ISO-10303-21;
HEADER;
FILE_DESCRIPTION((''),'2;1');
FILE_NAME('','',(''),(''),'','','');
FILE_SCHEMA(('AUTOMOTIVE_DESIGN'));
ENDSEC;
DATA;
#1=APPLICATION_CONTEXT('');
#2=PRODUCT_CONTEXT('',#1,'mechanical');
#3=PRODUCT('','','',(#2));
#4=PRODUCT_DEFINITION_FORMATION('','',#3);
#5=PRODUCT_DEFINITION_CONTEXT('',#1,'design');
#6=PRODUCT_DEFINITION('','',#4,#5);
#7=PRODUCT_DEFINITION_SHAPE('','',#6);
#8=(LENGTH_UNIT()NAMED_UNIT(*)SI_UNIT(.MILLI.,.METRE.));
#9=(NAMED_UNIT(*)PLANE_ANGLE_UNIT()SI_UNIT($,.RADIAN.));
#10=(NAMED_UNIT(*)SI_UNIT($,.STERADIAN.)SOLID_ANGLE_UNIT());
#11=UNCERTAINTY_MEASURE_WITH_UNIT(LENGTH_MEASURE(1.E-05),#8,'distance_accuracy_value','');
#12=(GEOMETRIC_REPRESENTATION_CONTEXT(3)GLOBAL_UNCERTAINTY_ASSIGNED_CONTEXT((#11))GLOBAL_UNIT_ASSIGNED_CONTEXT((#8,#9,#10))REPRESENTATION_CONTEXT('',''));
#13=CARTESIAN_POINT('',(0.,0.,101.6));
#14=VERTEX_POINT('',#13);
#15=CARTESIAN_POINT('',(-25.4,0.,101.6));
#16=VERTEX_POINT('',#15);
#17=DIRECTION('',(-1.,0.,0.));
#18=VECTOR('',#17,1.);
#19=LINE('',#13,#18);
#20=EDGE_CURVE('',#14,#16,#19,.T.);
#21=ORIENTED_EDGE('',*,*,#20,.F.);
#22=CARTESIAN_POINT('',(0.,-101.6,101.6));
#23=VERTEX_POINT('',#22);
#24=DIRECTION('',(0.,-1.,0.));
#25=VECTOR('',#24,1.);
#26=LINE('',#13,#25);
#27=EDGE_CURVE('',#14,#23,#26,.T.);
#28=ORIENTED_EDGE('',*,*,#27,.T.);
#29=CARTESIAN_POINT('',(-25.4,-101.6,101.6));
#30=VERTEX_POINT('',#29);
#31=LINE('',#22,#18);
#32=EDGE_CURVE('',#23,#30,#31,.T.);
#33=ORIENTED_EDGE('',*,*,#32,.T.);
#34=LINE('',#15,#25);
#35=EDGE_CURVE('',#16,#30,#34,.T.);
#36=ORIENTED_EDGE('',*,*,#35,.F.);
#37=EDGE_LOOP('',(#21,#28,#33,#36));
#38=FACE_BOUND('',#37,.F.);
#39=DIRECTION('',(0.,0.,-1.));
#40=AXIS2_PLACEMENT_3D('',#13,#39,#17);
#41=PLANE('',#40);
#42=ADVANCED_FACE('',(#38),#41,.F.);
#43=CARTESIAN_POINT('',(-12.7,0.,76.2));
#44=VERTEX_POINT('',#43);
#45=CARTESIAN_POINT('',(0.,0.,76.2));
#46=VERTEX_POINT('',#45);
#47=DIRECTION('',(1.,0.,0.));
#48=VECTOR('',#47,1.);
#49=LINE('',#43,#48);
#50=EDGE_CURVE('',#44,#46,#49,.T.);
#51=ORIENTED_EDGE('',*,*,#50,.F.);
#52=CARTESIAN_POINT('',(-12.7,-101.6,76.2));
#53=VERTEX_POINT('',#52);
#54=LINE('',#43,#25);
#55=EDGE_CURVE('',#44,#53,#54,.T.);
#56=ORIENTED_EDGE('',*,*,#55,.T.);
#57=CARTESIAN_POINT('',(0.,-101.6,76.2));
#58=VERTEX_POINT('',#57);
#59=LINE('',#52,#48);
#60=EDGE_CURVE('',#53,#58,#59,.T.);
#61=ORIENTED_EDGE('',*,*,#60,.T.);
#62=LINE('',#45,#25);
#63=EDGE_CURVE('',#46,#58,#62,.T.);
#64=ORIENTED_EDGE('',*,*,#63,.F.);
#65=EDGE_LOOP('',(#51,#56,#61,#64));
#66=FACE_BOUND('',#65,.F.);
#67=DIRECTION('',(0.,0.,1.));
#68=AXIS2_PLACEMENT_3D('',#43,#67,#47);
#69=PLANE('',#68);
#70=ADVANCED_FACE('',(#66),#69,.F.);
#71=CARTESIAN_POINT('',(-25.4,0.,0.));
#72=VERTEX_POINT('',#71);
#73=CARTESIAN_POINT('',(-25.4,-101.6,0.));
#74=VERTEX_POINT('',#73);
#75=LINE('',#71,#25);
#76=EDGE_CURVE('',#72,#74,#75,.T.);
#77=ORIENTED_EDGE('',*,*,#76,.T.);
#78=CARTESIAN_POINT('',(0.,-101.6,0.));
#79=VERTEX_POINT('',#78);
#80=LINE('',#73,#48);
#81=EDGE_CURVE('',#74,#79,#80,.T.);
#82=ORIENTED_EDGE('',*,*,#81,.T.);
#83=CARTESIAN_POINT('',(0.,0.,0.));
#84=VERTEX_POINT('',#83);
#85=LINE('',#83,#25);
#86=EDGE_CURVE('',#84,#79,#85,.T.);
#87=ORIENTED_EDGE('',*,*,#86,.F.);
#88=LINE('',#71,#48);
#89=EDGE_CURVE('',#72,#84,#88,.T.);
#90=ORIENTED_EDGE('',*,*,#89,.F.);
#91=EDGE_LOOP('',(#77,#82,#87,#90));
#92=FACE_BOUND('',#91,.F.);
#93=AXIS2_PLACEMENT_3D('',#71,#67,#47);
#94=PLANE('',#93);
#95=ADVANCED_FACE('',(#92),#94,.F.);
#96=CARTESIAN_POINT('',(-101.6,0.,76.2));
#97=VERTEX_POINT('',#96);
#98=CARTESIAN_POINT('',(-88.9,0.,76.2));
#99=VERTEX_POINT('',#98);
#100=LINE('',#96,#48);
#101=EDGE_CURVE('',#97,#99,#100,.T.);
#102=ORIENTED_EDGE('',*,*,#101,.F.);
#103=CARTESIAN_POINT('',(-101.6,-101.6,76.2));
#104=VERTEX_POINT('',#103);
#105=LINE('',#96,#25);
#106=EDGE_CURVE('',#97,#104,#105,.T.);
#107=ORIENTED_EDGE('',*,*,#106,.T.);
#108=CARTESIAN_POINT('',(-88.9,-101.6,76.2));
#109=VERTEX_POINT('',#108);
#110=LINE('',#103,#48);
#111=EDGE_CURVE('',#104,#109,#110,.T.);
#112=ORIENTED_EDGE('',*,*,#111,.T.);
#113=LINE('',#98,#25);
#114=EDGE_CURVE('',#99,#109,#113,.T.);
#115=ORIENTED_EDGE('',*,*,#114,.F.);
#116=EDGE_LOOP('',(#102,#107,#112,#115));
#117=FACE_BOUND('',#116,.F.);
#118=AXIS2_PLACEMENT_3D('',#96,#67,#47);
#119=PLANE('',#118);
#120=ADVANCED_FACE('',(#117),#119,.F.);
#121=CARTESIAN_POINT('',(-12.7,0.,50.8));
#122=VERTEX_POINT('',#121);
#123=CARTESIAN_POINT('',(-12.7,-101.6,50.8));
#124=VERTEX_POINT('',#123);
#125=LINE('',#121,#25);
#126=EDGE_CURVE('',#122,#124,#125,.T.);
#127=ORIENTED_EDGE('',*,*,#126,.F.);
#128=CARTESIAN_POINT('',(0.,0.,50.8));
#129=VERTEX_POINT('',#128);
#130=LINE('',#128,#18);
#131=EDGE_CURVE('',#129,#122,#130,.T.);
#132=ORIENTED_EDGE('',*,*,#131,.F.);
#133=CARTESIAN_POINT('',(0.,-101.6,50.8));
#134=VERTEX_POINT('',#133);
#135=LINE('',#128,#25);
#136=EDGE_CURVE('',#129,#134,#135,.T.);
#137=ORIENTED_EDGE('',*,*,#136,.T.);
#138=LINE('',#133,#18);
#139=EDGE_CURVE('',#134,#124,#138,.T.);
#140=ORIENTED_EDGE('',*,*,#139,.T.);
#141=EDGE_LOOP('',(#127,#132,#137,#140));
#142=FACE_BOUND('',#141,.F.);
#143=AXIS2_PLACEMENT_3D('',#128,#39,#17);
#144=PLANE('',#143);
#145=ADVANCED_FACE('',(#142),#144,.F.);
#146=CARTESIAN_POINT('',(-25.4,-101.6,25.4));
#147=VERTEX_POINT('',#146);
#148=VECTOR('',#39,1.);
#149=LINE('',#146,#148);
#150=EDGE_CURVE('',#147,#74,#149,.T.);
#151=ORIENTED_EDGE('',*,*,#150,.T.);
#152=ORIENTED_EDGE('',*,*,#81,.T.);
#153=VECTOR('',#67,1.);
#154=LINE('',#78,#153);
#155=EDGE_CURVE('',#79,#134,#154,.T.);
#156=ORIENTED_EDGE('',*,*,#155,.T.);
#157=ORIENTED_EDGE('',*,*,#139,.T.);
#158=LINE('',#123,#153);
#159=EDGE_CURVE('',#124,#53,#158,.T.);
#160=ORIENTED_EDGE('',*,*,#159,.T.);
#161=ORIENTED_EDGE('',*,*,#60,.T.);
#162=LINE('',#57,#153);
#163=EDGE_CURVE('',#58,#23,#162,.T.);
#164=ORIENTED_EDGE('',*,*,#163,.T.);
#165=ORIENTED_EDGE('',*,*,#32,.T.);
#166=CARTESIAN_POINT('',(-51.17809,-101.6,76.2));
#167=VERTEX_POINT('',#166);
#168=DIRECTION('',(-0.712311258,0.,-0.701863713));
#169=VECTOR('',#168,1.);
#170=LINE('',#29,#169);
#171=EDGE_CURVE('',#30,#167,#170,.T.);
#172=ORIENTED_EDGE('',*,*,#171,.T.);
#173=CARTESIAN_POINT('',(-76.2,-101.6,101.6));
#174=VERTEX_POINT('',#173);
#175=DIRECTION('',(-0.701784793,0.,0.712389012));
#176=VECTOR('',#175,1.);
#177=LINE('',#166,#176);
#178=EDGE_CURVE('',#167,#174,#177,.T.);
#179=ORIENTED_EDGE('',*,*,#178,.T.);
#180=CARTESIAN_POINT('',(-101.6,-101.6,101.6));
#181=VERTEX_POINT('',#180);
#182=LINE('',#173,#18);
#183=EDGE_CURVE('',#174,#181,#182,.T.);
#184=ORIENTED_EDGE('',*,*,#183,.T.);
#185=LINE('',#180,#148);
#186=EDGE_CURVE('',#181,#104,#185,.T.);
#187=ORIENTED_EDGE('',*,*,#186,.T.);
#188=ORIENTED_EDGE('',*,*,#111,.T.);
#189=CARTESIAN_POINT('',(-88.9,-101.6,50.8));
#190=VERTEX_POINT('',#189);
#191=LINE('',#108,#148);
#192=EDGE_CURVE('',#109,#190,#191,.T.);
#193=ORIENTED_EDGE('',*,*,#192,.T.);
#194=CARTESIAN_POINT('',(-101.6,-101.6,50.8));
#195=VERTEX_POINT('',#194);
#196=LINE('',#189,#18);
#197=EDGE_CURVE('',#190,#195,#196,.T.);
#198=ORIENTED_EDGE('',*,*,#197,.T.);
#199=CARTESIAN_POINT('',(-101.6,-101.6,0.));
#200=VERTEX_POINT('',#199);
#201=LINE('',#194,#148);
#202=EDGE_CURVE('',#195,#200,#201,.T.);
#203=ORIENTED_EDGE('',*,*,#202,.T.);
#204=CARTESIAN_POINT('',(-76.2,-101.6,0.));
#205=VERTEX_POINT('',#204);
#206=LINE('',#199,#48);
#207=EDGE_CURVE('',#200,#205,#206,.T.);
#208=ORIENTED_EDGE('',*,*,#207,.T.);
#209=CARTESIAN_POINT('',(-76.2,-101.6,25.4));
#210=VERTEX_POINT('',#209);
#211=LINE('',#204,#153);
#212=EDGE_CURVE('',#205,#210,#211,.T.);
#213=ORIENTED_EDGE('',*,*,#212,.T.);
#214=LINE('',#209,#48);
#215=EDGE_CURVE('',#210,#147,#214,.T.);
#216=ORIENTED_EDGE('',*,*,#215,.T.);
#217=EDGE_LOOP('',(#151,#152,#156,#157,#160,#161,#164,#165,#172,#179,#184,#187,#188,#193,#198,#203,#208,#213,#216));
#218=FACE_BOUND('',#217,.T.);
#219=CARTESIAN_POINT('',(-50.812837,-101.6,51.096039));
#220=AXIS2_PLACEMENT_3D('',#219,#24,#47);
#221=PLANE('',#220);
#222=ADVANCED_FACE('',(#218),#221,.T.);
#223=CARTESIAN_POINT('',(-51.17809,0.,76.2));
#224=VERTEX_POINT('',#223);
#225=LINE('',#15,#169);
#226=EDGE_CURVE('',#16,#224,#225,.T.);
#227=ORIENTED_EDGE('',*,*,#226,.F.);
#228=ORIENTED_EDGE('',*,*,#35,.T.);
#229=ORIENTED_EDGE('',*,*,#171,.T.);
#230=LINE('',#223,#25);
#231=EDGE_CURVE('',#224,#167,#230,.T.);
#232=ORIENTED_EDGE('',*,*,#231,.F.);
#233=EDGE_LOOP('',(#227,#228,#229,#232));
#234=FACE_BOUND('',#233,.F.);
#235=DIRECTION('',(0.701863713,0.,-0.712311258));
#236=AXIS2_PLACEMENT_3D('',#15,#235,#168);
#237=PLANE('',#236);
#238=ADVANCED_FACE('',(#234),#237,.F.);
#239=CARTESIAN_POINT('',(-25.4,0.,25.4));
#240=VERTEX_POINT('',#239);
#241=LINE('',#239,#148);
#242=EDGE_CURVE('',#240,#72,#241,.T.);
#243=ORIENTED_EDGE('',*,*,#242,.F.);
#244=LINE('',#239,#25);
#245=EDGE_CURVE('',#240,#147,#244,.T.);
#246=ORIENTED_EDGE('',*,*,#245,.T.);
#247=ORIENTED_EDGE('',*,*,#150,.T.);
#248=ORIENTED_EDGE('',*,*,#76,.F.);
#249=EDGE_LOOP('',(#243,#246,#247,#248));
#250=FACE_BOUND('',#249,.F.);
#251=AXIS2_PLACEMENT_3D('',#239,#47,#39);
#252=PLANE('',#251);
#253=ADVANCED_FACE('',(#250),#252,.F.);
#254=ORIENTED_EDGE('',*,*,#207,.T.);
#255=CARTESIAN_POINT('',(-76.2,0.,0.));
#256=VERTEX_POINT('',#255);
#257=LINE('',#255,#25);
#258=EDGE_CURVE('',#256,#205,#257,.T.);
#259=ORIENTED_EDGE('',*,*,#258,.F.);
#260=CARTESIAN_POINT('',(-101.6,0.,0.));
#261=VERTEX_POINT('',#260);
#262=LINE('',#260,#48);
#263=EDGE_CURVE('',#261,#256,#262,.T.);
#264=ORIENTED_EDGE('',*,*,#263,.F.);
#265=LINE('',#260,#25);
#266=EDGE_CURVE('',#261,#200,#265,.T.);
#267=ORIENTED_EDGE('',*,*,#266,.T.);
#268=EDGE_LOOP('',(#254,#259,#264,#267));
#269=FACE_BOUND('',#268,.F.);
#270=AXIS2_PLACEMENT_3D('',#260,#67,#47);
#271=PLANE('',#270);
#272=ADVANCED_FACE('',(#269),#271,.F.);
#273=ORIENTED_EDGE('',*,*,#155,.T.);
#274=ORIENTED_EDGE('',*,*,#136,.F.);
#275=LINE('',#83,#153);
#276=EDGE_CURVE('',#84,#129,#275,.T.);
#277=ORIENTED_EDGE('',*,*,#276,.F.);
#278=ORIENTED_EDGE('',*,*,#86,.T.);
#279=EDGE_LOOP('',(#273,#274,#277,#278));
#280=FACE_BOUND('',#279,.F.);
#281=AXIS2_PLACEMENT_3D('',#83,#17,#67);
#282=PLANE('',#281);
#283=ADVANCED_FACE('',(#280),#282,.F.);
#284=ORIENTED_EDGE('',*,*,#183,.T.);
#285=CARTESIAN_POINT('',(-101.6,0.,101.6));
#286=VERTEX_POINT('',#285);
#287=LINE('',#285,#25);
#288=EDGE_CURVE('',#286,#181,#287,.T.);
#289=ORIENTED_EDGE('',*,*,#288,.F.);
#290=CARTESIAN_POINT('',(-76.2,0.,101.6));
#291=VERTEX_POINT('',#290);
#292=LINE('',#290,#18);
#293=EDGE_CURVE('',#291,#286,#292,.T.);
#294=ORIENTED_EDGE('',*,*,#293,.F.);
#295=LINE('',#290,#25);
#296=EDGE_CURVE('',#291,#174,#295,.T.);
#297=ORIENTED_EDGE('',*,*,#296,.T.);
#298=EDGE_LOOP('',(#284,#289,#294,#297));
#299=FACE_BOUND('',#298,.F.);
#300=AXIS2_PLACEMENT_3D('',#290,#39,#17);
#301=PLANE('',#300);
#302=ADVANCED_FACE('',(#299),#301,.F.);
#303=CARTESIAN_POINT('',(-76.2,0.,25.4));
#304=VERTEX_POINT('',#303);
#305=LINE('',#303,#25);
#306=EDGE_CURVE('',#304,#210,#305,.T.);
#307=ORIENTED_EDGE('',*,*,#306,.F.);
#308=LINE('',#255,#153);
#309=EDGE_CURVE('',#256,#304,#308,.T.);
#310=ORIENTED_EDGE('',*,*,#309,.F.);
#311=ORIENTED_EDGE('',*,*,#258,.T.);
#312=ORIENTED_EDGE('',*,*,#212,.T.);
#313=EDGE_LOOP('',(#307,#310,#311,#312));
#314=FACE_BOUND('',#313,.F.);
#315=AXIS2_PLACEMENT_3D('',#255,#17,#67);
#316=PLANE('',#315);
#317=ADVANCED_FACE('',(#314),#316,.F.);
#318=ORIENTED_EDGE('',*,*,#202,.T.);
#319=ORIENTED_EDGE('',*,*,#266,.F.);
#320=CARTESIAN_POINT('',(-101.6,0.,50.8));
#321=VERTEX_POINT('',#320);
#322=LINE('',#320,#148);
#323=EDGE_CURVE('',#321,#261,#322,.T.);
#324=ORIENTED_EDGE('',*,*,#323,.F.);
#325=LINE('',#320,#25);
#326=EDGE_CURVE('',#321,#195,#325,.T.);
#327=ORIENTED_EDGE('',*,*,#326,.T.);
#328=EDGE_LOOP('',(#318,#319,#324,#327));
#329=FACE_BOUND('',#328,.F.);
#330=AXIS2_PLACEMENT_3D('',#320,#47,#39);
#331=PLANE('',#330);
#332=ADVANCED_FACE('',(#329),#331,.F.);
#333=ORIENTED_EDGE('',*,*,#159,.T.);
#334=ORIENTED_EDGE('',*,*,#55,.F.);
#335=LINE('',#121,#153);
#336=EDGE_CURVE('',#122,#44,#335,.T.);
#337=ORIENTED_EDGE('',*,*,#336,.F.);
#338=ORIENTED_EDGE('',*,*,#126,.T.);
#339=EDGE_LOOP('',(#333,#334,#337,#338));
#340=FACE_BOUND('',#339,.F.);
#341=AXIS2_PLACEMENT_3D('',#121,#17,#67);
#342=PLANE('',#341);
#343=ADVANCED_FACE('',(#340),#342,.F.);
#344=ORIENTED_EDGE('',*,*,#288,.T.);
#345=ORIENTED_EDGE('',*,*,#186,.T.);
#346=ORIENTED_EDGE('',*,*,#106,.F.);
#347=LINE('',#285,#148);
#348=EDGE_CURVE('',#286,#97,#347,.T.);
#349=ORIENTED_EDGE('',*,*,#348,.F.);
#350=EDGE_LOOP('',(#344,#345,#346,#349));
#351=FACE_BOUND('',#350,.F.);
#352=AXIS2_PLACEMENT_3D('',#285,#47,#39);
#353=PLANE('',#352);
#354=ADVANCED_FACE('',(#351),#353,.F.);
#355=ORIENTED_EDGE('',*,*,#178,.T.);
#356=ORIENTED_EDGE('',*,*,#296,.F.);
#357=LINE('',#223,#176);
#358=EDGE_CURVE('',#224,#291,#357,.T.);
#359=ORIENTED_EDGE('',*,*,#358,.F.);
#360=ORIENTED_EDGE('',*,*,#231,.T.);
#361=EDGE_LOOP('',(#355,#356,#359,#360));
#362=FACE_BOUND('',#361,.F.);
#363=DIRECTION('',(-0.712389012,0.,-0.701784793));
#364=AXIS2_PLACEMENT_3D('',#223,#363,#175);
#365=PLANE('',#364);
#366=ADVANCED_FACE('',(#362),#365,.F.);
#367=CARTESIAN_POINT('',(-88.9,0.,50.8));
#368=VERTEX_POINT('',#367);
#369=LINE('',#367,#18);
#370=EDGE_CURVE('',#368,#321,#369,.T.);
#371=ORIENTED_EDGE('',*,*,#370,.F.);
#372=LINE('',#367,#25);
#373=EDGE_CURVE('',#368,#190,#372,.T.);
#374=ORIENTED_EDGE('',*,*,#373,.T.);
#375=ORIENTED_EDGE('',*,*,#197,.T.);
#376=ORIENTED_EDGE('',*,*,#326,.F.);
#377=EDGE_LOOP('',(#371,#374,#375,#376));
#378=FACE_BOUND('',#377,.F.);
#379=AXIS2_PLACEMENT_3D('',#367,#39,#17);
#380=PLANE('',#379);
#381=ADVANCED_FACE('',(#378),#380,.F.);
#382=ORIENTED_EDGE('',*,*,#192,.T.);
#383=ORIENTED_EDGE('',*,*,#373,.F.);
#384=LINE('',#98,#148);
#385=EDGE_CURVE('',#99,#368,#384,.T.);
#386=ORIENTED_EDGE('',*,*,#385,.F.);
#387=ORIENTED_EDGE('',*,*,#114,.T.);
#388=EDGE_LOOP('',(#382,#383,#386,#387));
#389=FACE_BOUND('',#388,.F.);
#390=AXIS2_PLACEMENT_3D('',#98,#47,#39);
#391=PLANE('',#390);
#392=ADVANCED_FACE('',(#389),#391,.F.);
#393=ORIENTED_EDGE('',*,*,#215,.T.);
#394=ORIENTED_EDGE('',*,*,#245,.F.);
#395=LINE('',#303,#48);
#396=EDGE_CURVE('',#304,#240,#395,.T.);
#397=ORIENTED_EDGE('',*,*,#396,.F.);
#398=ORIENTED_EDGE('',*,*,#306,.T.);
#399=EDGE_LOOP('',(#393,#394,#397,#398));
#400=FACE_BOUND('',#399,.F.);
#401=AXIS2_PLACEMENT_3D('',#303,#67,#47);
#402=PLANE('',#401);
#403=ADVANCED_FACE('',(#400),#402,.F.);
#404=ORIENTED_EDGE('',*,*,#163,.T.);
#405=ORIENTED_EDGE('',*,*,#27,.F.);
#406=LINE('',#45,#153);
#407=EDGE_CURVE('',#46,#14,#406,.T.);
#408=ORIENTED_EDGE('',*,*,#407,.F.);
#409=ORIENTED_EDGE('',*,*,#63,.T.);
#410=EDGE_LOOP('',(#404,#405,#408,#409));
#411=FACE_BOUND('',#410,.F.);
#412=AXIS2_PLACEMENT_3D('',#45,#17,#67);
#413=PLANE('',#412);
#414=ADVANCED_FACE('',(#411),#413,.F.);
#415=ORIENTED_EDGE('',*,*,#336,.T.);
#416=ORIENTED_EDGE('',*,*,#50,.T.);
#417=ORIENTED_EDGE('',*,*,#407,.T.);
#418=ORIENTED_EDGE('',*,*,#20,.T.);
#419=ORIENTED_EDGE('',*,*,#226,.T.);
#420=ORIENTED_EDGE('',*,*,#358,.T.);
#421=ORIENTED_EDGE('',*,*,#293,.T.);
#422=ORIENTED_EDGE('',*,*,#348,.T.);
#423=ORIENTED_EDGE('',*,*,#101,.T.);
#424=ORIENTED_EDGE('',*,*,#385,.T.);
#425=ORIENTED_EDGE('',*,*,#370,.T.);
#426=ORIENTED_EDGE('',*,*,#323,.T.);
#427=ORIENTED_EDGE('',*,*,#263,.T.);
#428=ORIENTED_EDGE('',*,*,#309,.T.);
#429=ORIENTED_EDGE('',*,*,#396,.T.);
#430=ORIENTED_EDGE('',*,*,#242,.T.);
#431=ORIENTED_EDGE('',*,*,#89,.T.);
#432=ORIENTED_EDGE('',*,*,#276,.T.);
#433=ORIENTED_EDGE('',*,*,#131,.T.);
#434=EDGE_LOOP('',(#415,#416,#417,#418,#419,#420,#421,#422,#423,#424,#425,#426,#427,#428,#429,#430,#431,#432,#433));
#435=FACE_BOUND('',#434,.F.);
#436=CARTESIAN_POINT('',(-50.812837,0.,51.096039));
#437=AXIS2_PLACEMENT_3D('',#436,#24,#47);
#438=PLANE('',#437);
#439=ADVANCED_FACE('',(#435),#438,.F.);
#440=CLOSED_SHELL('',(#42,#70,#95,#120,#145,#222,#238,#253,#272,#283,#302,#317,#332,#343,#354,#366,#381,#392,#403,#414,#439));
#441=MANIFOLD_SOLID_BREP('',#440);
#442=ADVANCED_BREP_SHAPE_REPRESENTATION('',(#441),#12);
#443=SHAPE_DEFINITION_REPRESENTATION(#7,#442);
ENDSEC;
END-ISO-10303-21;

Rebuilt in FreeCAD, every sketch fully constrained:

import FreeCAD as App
import Part
import Sketcher

V = App.Vector
Q = App.Units.Quantity

doc = App.newDocument("Part")
body = doc.addObject("PartDesign::Body", "Body")

sketch1 = body.newObject("Sketcher::SketchObject", "Sketch")
sketch1.AttachmentSupport = (doc.getObject("XZ_Plane"), [""])
sketch1.MapMode = "FlatFace"
sketch1.addGeometry([
    Part.LineSegment(V(-25.4, 0, 0), V(0, 0, 0)),
    Part.LineSegment(V(0, 0, 0), V(0, 50.8, 0)),
    Part.LineSegment(V(0, 50.8, 0), V(-12.7, 50.8, 0)),
    Part.LineSegment(V(-12.7, 50.8, 0), V(-12.7, 76.2, 0)),
    Part.LineSegment(V(-12.7, 76.2, 0), V(0, 76.2, 0)),
    Part.LineSegment(V(0, 76.2, 0), V(0, 101.6, 0)),
    Part.LineSegment(V(0, 101.6, 0), V(-25.4, 101.6, 0)),
    Part.LineSegment(V(-25.4, 101.6, 0), V(-51.17809, 76.2, 0)),
    Part.LineSegment(V(-51.17809, 76.2, 0), V(-76.2, 101.6, 0)),
    Part.LineSegment(V(-76.2, 101.6, 0), V(-101.6, 101.6, 0)),
    Part.LineSegment(V(-101.6, 101.6, 0), V(-101.6, 76.2, 0)),
    Part.LineSegment(V(-101.6, 76.2, 0), V(-88.9, 76.2, 0)),
    Part.LineSegment(V(-88.9, 76.2, 0), V(-88.9, 50.8, 0)),
    Part.LineSegment(V(-88.9, 50.8, 0), V(-101.6, 50.8, 0)),
    Part.LineSegment(V(-101.6, 50.8, 0), V(-101.6, 0, 0)),
    Part.LineSegment(V(-101.6, 0, 0), V(-76.2, 0, 0)),
    Part.LineSegment(V(-76.2, 0, 0), V(-76.2, 25.4, 0)),
    Part.LineSegment(V(-76.2, 25.4, 0), V(-25.4, 25.4, 0)),
    Part.LineSegment(V(-25.4, 25.4, 0), V(-25.4, 0, 0)),
], False)
sketch1.addConstraint([
    Sketcher.Constraint("Coincident", 0, 2, 1, 1),
    Sketcher.Constraint("Coincident", 1, 2, 2, 1),
    Sketcher.Constraint("Coincident", 2, 2, 3, 1),
    Sketcher.Constraint("Coincident", 3, 2, 4, 1),
    Sketcher.Constraint("Coincident", 4, 2, 5, 1),
    Sketcher.Constraint("Coincident", 5, 2, 6, 1),
    Sketcher.Constraint("Coincident", 6, 2, 7, 1),
    Sketcher.Constraint("Coincident", 7, 2, 8, 1),
    Sketcher.Constraint("Coincident", 8, 2, 9, 1),
    Sketcher.Constraint("Coincident", 9, 2, 10, 1),
    Sketcher.Constraint("Coincident", 10, 2, 11, 1),
    Sketcher.Constraint("Coincident", 11, 2, 12, 1),
    Sketcher.Constraint("Coincident", 12, 2, 13, 1),
    Sketcher.Constraint("Coincident", 13, 2, 14, 1),
    Sketcher.Constraint("Coincident", 14, 2, 15, 1),
    Sketcher.Constraint("Coincident", 15, 2, 16, 1),
    Sketcher.Constraint("Coincident", 16, 2, 17, 1),
    Sketcher.Constraint("Coincident", 17, 2, 18, 1),
    Sketcher.Constraint("Coincident", 18, 2, 0, 1),
    Sketcher.Constraint("Horizontal", 0),
    Sketcher.Constraint("Vertical", 1),
    Sketcher.Constraint("Horizontal", 2),
    Sketcher.Constraint("Vertical", 3),
    Sketcher.Constraint("Horizontal", 4),
    Sketcher.Constraint("Vertical", 5),
    Sketcher.Constraint("Horizontal", 6),
    Sketcher.Constraint("Horizontal", 9),
    Sketcher.Constraint("Vertical", 10),
    Sketcher.Constraint("Horizontal", 11),
    Sketcher.Constraint("Vertical", 12),
    Sketcher.Constraint("Horizontal", 13),
    Sketcher.Constraint("Vertical", 14),
    Sketcher.Constraint("Horizontal", 15),
    Sketcher.Constraint("Vertical", 16),
    Sketcher.Constraint("Horizontal", 17),
    Sketcher.Constraint("Vertical", 18),
    Sketcher.Constraint("Coincident", 0, 2, -1, 1),
    Sketcher.Constraint("PointOnObject", 4, 2, -2),
    Sketcher.Constraint("PointOnObject", 14, 2, -1),
    Sketcher.Constraint("Horizontal", 4, 2, 7, 2),
    Sketcher.Constraint("Horizontal", 6, 2, 8, 2),
    Sketcher.Constraint("Horizontal", 7, 2, 10, 2),
    Sketcher.Constraint("Horizontal", 2, 2, 12, 2),
    Sketcher.Constraint("Vertical", 10, 2, 13, 2),
    Sketcher.Constraint("Vertical", 8, 2, 15, 2),
    Sketcher.Constraint("Vertical", 6, 2, 17, 2),
    Sketcher.Constraint("Equal", 6, 9),
    Sketcher.Constraint("Equal", 4, 11),
    Sketcher.Constraint("Equal", 17, 1),
    Sketcher.Constraint("Equal", 15, 3),
    Sketcher.Constraint("Equal", 3, 5),
    Sketcher.Constraint("Equal", 12, 16),
    Sketcher.Constraint("DistanceX", 0, 1, 0, 2, Q("1 in")),
    Sketcher.Constraint("DistanceX", 17, 1, 17, 2, Q("2 in")),
    Sketcher.Constraint("DistanceX", 2, 2, 2, 1, Q("0.5 in")),
    Sketcher.Constraint("DistanceX", 7, 2, -1, 1, 51.17809),
])
pad1 = body.newObject("PartDesign::Pad", "Pad")
pad1.Profile = sketch1
pad1.Length = Q("4 in")

doc.recompute()
